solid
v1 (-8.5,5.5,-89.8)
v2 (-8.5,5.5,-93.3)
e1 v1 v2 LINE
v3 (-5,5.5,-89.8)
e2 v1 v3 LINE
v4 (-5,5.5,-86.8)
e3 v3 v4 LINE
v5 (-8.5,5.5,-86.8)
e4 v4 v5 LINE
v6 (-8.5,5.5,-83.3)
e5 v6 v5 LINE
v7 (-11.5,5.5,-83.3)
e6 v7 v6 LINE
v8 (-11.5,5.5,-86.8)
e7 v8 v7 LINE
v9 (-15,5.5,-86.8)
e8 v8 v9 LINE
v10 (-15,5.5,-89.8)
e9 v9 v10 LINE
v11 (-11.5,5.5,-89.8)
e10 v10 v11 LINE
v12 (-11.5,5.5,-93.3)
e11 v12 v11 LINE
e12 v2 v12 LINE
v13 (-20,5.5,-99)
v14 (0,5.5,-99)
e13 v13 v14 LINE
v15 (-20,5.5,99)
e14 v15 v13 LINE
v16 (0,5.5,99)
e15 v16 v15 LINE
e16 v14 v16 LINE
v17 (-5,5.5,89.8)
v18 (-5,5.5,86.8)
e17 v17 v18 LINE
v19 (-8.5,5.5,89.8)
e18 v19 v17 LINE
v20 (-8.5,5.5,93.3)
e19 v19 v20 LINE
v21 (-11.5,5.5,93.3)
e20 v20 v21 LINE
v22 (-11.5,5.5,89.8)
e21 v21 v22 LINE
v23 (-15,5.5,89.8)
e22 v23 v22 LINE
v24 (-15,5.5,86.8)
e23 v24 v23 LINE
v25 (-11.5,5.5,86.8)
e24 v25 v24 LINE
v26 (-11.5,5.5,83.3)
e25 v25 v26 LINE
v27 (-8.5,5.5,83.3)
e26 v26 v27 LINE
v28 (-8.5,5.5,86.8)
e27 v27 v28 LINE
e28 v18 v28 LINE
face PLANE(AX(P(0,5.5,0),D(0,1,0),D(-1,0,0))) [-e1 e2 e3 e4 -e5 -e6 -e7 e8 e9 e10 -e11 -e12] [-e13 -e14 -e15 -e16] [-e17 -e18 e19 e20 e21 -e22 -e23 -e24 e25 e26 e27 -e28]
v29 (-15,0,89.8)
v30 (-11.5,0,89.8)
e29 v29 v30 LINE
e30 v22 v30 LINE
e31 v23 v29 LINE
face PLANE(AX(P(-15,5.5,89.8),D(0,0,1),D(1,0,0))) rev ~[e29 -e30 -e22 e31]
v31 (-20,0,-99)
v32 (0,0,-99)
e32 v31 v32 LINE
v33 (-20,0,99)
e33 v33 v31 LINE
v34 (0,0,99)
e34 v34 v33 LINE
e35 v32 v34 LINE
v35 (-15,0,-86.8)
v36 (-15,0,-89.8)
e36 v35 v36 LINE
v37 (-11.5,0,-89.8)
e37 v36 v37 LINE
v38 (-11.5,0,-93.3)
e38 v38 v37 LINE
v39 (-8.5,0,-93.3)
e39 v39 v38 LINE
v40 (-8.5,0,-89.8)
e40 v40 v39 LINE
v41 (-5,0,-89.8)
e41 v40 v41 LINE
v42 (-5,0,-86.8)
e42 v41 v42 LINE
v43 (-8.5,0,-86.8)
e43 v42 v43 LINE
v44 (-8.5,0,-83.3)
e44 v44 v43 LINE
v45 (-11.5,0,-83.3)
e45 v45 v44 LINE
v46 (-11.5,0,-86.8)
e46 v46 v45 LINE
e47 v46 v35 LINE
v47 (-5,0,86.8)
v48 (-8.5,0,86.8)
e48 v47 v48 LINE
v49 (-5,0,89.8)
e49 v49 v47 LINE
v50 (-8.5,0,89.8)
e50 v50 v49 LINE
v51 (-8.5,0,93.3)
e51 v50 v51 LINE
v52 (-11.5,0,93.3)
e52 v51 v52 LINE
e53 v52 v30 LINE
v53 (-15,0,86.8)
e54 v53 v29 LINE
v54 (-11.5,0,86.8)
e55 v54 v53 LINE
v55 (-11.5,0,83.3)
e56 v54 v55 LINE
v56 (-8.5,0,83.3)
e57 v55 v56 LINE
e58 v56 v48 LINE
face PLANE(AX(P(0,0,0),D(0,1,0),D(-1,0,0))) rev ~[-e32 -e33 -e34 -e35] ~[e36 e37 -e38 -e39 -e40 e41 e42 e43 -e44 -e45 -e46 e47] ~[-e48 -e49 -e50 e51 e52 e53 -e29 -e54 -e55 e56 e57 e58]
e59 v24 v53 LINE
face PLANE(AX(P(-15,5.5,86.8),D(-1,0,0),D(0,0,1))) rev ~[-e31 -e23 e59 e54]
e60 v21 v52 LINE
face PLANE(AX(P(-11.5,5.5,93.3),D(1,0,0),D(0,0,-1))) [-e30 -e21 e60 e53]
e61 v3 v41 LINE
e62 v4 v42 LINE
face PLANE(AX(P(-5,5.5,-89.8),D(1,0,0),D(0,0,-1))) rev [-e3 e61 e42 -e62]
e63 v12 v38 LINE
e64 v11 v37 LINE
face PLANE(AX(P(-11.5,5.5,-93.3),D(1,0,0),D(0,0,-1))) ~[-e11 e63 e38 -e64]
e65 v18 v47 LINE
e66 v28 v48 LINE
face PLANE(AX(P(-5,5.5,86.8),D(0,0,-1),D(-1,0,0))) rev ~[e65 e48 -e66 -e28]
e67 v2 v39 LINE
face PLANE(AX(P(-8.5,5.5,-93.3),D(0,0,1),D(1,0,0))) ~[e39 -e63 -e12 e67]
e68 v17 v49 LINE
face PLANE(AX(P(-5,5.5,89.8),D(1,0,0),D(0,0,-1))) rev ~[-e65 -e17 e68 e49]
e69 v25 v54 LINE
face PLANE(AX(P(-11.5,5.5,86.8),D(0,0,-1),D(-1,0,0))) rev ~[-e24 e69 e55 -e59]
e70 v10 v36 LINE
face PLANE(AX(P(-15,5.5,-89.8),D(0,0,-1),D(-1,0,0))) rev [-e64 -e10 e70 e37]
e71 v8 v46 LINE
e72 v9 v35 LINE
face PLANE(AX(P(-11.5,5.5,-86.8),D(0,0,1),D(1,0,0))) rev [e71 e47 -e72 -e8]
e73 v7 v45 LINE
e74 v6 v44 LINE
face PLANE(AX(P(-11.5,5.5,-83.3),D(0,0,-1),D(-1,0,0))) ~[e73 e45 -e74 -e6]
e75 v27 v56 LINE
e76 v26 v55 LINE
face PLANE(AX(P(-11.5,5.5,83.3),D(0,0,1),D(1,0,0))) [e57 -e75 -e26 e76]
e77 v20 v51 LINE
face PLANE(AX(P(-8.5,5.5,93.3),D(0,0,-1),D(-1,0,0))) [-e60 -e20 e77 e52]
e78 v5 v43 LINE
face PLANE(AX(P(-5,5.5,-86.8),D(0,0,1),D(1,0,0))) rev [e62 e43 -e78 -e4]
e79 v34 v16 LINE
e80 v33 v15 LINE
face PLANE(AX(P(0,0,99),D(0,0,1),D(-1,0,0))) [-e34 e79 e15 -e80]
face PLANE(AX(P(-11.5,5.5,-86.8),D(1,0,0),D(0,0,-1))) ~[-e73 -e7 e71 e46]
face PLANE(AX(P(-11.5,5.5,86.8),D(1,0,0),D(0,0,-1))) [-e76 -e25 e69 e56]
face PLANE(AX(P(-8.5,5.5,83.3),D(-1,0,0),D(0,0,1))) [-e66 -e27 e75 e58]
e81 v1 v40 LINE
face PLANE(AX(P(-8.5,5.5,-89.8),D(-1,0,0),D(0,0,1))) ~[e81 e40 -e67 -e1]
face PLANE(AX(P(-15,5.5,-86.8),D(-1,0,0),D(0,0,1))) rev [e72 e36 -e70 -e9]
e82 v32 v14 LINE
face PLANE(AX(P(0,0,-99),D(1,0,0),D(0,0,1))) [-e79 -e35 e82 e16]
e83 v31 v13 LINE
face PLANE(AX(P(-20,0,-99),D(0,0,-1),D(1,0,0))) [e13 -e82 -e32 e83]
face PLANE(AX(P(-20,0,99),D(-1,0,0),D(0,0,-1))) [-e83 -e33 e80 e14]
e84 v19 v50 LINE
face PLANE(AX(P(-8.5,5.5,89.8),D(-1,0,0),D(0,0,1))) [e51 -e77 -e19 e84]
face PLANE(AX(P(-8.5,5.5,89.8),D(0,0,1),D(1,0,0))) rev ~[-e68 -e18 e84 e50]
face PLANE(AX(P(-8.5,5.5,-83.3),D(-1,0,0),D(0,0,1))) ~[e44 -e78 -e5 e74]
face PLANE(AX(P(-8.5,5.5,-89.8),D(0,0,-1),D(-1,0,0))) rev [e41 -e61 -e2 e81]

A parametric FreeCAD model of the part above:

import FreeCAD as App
import Part
import Sketcher

V = App.Vector
Q = App.Units.Quantity


def add_polygon(sketch, points):
    """Adds a closed chain of lines whose ends are joined by coincident constraints."""
    first, n = sketch.GeometryCount, len(points)
    for a, b in zip(points, points[1:] + points[:1]):
        sketch.addGeometry(Part.LineSegment(App.Vector(*a, 0), App.Vector(*b, 0)), False)
    for i in range(n):
        sketch.addConstraint(Sketcher.Constraint("Coincident", first + i, 2, first + (i + 1) % n, 1))

doc = App.newDocument("Part")
params = doc.addObject("Spreadsheet::Sheet", "Params")
for row, (alias, value) in enumerate([
    ("sketch1_width", "20 mm"),
    ("sketch1_height", "198 mm"),
    ("pad1_length", "5.5 mm"),
    ("sketch2_width", "3 mm"),
], start=1):
    params.set(f"A{row}", alias)
    params.set(f"B{row}", "=" + value)
    params.setAlias(f"B{row}", alias)

body = doc.addObject("PartDesign::Body", "Body")

sketch1 = body.newObject("Sketcher::SketchObject", "Sketch")
sketch1.AttachmentSupport = (doc.getObject("XZ_Plane"), [""])
sketch1.MapMode = "FlatFace"
add_polygon(sketch1, [(-20, 99), (0, 99), (0, -99), (-20, -99)])
sketch1.addConstraint(Sketcher.Constraint("Horizontal", 0))
sketch1.addConstraint(Sketcher.Constraint("Vertical", 1))
sketch1.addConstraint(Sketcher.Constraint("Horizontal", 2))
sketch1.addConstraint(Sketcher.Constraint("Vertical", 3))
sketch1.addConstraint(Sketcher.Constraint("Symmetric", 0, 2, 1, 2, -1, 1))
sketch1.addConstraint(Sketcher.Constraint("DistanceX", 0, 1, 0, 2, Q("20 mm")))
sketch1.addConstraint(Sketcher.Constraint("DistanceY", 1, 2, 1, 1, Q("198 mm")))
sketch1.setExpression("Constraints[9]", "Params.sketch1_width")
sketch1.setExpression("Constraints[10]", "Params.sketch1_height")
pad1 = body.newObject("PartDesign::Pad", "Pad")
pad1.Profile = sketch1
pad1.setExpression("Length", "Params.pad1_length")
pad1.Reversed = True

sketch2 = body.newObject("Sketcher::SketchObject", "Sketch001")
sketch2.AttachmentSupport = (doc.getObject("XZ_Plane"), [""])
sketch2.MapMode = "FlatFace"
sketch2.AttachmentOffset = App.Placement(V(0, 0, -5.5), App.Rotation())
add_polygon(sketch2, [(-15, 86.8), (-15, 89.8), (-11.5, 89.8), (-11.5, 93.3), (-8.5, 93.3), (-8.5, 89.8), (-5, 89.8), (-5, 86.8), (-8.5, 86.8), (-8.5, 83.3), (-11.5, 83.3), (-11.5, 86.8)])
sketch2.addConstraint(Sketcher.Constraint("Vertical", 0))
sketch2.addConstraint(Sketcher.Constraint("Horizontal", 1))
sketch2.addConstraint(Sketcher.Constraint("Vertical", 2))
sketch2.addConstraint(Sketcher.Constraint("Horizontal", 3))
sketch2.addConstraint(Sketcher.Constraint("Vertical", 4))
sketch2.addConstraint(Sketcher.Constraint("Horizontal", 5))
sketch2.addConstraint(Sketcher.Constraint("Vertical", 6))
sketch2.addConstraint(Sketcher.Constraint("Horizontal", 7))
sketch2.addConstraint(Sketcher.Constraint("Vertical", 8))
sketch2.addConstraint(Sketcher.Constraint("Horizontal", 9))
sketch2.addConstraint(Sketcher.Constraint("Vertical", 10))
sketch2.addConstraint(Sketcher.Constraint("Horizontal", 11))
sketch2.addConstraint(Sketcher.Constraint("Horizontal", 1, 2, 4, 2))
sketch2.addConstraint(Sketcher.Constraint("Horizontal", 7, 2, 10, 2))
sketch2.addConstraint(Sketcher.Constraint("Vertical", 4, 2, 7, 2))
sketch2.addConstraint(Sketcher.Constraint("Vertical", 2, 2, 9, 2))
sketch2.addConstraint(Sketcher.Constraint("Equal", 1, 5))
sketch2.addConstraint(Sketcher.Constraint("Equal", 9, 0))
sketch2.addConstraint(Sketcher.Constraint("Equal", 11, 2))
sketch2.addConstraint(Sketcher.Constraint("Equal", 4, 8))
sketch2.addConstraint(Sketcher.Constraint("DistanceX", 3, 1, 3, 2, Q("3 mm")))
sketch2.addConstraint(Sketcher.Constraint("DistanceX", 0, 2, 5, 2, Q("10 mm")))
sketch2.addConstraint(Sketcher.Constraint("DistanceX", 0, 2, -1, 1, Q("15 mm")))
sketch2.addConstraint(Sketcher.Constraint("DistanceY", -1, 1, 0, 2, Q("89.8 mm")))
sketch2.setExpression("Constraints[32]", "Params.sketch2_width")
pocket1 = body.newObject("PartDesign::Pocket", "Pocket")
pocket1.Profile = sketch2
pocket1.Type = "ThroughAll"
pocket1.Reversed = True
doc.recompute()

mirrored = body.newObject("PartDesign::Mirrored", "Mirrored")
mirrored.Originals = [pocket1]
mirrored.MirrorPlane = (doc.getObject("XY_Plane"), [""])
body.Tip = mirrored

doc.recompute()
